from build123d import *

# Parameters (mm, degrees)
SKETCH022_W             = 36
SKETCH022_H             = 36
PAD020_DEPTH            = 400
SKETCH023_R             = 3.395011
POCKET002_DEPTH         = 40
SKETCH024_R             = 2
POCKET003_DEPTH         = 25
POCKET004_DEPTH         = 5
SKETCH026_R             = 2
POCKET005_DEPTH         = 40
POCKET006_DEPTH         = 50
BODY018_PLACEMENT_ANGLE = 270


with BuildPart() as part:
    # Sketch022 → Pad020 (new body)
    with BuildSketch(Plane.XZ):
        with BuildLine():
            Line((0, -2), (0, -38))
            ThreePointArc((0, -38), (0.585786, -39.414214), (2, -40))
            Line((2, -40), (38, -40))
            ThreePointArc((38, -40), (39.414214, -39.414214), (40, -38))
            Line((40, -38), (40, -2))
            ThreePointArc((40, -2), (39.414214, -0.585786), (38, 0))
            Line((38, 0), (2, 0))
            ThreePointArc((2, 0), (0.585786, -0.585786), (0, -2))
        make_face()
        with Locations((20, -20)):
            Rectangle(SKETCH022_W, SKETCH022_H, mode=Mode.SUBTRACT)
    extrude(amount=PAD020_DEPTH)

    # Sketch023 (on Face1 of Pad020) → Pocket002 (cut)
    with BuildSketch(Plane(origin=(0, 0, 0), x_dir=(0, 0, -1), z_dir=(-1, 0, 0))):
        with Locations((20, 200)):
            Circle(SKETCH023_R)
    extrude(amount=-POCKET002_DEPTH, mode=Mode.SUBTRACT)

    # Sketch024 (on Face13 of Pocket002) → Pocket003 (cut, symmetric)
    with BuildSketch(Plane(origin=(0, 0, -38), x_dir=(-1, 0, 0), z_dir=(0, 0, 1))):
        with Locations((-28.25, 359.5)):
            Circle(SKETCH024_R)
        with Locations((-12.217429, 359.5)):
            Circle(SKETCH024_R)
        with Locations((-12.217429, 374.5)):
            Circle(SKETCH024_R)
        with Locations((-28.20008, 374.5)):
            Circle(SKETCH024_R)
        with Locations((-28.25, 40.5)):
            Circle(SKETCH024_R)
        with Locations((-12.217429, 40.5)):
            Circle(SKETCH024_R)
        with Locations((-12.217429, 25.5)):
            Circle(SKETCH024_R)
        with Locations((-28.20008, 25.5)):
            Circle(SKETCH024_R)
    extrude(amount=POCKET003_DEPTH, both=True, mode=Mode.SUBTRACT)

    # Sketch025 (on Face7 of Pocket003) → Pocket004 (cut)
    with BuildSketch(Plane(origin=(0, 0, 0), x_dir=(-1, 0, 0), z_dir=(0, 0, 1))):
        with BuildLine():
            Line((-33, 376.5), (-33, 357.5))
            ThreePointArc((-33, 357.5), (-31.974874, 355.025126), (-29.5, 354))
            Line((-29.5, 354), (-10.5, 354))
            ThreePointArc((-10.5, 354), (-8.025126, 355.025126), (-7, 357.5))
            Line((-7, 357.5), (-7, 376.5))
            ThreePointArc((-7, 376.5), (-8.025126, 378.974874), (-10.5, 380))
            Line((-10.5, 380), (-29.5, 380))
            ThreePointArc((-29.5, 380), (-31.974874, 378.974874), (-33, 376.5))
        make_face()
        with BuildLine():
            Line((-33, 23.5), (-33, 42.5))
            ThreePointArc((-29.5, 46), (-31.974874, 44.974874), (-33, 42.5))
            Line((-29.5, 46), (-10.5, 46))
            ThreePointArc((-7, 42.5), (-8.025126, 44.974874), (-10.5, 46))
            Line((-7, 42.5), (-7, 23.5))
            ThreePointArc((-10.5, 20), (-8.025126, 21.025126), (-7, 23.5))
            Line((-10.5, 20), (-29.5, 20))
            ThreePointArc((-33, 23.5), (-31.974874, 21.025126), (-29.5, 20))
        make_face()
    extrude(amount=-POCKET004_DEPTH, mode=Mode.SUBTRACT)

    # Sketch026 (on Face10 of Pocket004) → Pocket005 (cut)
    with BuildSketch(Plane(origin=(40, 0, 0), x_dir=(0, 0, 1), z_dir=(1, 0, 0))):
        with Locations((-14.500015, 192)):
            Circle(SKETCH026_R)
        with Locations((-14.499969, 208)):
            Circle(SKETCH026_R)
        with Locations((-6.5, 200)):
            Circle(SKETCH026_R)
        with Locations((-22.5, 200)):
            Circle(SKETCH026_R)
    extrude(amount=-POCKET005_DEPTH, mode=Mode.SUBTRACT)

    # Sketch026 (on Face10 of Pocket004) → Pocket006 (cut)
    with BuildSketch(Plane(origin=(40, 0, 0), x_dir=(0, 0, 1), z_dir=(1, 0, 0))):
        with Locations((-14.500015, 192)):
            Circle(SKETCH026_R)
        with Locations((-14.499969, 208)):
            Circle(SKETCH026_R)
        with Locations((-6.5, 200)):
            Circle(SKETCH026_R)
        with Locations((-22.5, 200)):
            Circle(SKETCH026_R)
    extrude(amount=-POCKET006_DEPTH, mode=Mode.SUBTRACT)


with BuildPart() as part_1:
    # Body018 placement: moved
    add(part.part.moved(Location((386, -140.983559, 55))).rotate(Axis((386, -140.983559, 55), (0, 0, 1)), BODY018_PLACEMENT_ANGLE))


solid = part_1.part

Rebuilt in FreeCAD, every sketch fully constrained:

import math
import FreeCAD as App
import Part
import Sketcher
from FreeCAD import Vector
Q = App.Units.Quantity

doc = App.newDocument("Part")
body = doc.addObject("PartDesign::Body", "Body")

sketch1 = body.newObject("Sketcher::SketchObject", "Sketch")
sketch1.AttachmentSupport = (doc.getObject("XZ_Plane"), [""])
sketch1.MapMode = "FlatFace"
sketch1.addGeometry(Part.LineSegment(Vector(0, -2, 0), Vector(0, -38, 0)), False)
sketch1.addGeometry(Part.ArcOfCircle(Part.Circle(Vector(2, -38, 0), Vector(0, 0, 1), 2), math.radians(180), math.radians(270)), False)
sketch1.addGeometry(Part.LineSegment(Vector(2, -40, 0), Vector(38, -40, 0)), False)
sketch1.addGeometry(Part.ArcOfCircle(Part.Circle(Vector(38, -38, 0), Vector(0, 0, 1), 2), math.radians(-90), math.radians(0)), False)
sketch1.addGeometry(Part.LineSegment(Vector(40, -38, 0), Vector(40, -2, 0)), False)
sketch1.addGeometry(Part.ArcOfCircle(Part.Circle(Vector(38, -2, 0), Vector(0, 0, 1), 2), math.radians(0), math.radians(90)), False)
sketch1.addGeometry(Part.LineSegment(Vector(38, 0, 0), Vector(2, 0, 0)), False)
sketch1.addGeometry(Part.ArcOfCircle(Part.Circle(Vector(2, -2, 0), Vector(0, 0, 1), 2), math.radians(90), math.radians(180)), False)
sketch1.addGeometry(Part.LineSegment(Vector(38, -38, 0), Vector(2, -38, 0)), False)
sketch1.addGeometry(Part.LineSegment(Vector(2, -38, 0), Vector(2, -2, 0)), False)
sketch1.addGeometry(Part.LineSegment(Vector(2, -2, 0), Vector(38, -2, 0)), False)
sketch1.addGeometry(Part.LineSegment(Vector(38, -2, 0), Vector(38, -38, 0)), False)
sketch1.addConstraint(Sketcher.Constraint("Tangent", 0, 2, 1, 1))
sketch1.addConstraint(Sketcher.Constraint("Tangent", 1, 2, 2, 1))
sketch1.addConstraint(Sketcher.Constraint("Tangent", 2, 2, 3, 1))
sketch1.addConstraint(Sketcher.Constraint("Tangent", 3, 2, 4, 1))
sketch1.addConstraint(Sketcher.Constraint("Tangent", 4, 2, 5, 1))
sketch1.addConstraint(Sketcher.Constraint("Tangent", 5, 2, 6, 1))
sketch1.addConstraint(Sketcher.Constraint("Tangent", 6, 2, 7, 1))
sketch1.addConstraint(Sketcher.Constraint("Tangent", 7, 2, 0, 1))
sketch1.addConstraint(Sketcher.Constraint("Coincident", 8, 2, 9, 1))
sketch1.addConstraint(Sketcher.Constraint("Coincident", 9, 2, 10, 1))
sketch1.addConstraint(Sketcher.Constraint("Coincident", 10, 2, 11, 1))
sketch1.addConstraint(Sketcher.Constraint("Coincident", 11, 2, 8, 1))
sketch1.addConstraint(Sketcher.Constraint("Vertical", 0))
sketch1.addConstraint(Sketcher.Constraint("Horizontal", 2))
sketch1.addConstraint(Sketcher.Constraint("Vertical", 4))
sketch1.addConstraint(Sketcher.Constraint("Horizontal", 6))
sketch1.addConstraint(Sketcher.Constraint("Horizontal", 8))
sketch1.addConstraint(Sketcher.Constraint("Vertical", 9))
sketch1.addConstraint(Sketcher.Constraint("Horizontal", 10))
sketch1.addConstraint(Sketcher.Constraint("Vertical", 11))
sketch1.addConstraint(Sketcher.Constraint("Coincident", 8, 2, 1, 3))
sketch1.addConstraint(Sketcher.Constraint("Coincident", 9, 2, 7, 3))
sketch1.addConstraint(Sketcher.Constraint("Coincident", 10, 2, 5, 3))
sketch1.addConstraint(Sketcher.Constraint("Equal", 1, 3))
sketch1.addConstraint(Sketcher.Constraint("PointOnObject", 0, 2, -2))
sketch1.addConstraint(Sketcher.Constraint("PointOnObject", 5, 2, -1))
sketch1.addConstraint(Sketcher.Constraint("Equal", 10, 0))
sketch1.addConstraint(Sketcher.Constraint("Radius", 1, Q("1.999999 mm")))
sketch1.addConstraint(Sketcher.Constraint("DistanceX", 2, 1, 2, 2, Q("36 mm")))
pad1 = body.newObject("PartDesign::Pad", "Pad")
pad1.Profile = sketch1
pad1.Length = 400

sketch2 = body.newObject("Sketcher::SketchObject", "Sketch001")
sketch2.AttachmentSupport = (doc.getObject("YZ_Plane"), [""])
sketch2.MapMode = "FlatFace"
sketch2.addGeometry(Part.Circle(Vector(-200, -20, 0), Vector(0, 0, 1), 3.4), False)
sketch2.addConstraint(Sketcher.Constraint("DistanceX", 0, 3, -1, 1, Q("200 mm")))
sketch2.addConstraint(Sketcher.Constraint("DistanceY", 0, 3, -1, 1, Q("20 mm")))
sketch2.addConstraint(Sketcher.Constraint("Diameter", 0, Q("6.790022 mm")))
pocket1 = body.newObject("PartDesign::Pocket", "Pocket")
pocket1.Profile = sketch2
pocket1.Length = 40
pocket1.Reversed = True

sketch3 = body.newObject("Sketcher::SketchObject", "Sketch002")
sketch3.AttachmentSupport = (doc.getObject("XY_Plane"), [""])
sketch3.MapMode = "FlatFace"
sketch3.AttachmentOffset = App.Placement(Vector(0, 0, -38), App.Rotation())
sketch3.addGeometry(Part.Circle(Vector(28.2, -359.5, 0), Vector(0, 0, 1), 2), False)
sketch3.addGeometry(Part.Circle(Vector(12.2, -359.5, 0), Vector(0, 0, 1), 2), False)
sketch3.addGeometry(Part.Circle(Vector(12.2, -374.5, 0), Vector(0, 0, 1), 2), False)
sketch3.addGeometry(Part.Circle(Vector(28.2, -374.5, 0), Vector(0, 0, 1), 2), False)
sketch3.addGeometry(Part.Circle(Vector(28.2, -40.5, 0), Vector(0, 0, 1), 2), False)
sketch3.addGeometry(Part.Circle(Vector(12.2, -40.5, 0), Vector(0, 0, 1), 2), False)
sketch3.addGeometry(Part.Circle(Vector(12.2, -25.5, 0), Vector(0, 0, 1), 2), False)
sketch3.addGeometry(Part.Circle(Vector(28.2, -25.5, 0), Vector(0, 0, 1), 2), False)
sketch3.addConstraint(Sketcher.Constraint("Equal", 0, 1))
sketch3.addConstraint(Sketcher.Constraint("Equal", 1, 2))
sketch3.addConstraint(Sketcher.Constraint("Equal", 2, 3))
sketch3.addConstraint(Sketcher.Constraint("Equal", 3, 4))
sketch3.addConstraint(Sketcher.Constraint("Equal", 4, 5))
sketch3.addConstraint(Sketcher.Constraint("Equal", 5, 6))
sketch3.addConstraint(Sketcher.Constraint("Equal", 6, 7))
sketch3.addConstraint(Sketcher.Constraint("Horizontal", 0, 3, 1, 3))
sketch3.addConstraint(Sketcher.Constraint("Horizontal", 2, 3, 3, 3))
sketch3.addConstraint(Sketcher.Constraint("Horizontal", 4, 3, 5, 3))
sketch3.addConstraint(Sketcher.Constraint("Horizontal", 6, 3, 7, 3))
sketch3.addConstraint(Sketcher.Constraint("Vertical", 1, 3, 2, 3))
sketch3.addConstraint(Sketcher.Constraint("Vertical", 0, 3, 4, 3))
sketch3.addConstraint(Sketcher.Constraint("Vertical", 2, 3, 5, 3))
sketch3.addConstraint(Sketcher.Constraint("Vertical", 5, 3, 6, 3))
sketch3.addConstraint(Sketcher.Constraint("Vertical", 3, 3, 7, 3))
sketch3.addConstraint(Sketcher.Constraint("Diameter", 0, Q("4 mm")))
sketch3.addConstraint(Sketcher.Constraint("DistanceY", 2, 3, 1, 3, Q("15 mm")))
sketch3.addConstraint(Sketcher.Constraint("DistanceY", 0, 3, 4, 3, Q("319 mm")))
sketch3.addConstraint(Sketcher.Constraint("DistanceY", 5, 3, 6, 3, Q("15 mm")))
sketch3.addConstraint(Sketcher.Constraint("DistanceY", 0, 3, -1, 1, Q("359.5 mm")))
sketch3.addConstraint(Sketcher.Constraint("DistanceX", -1, 1, 0, 3, Q("28.25 mm")))
sketch3.addConstraint(Sketcher.Constraint("DistanceX", -1, 1, 1, 3, Q("12.217429 mm")))
sketch3.addConstraint(Sketcher.Constraint("DistanceX", -1, 1, 3, 3, Q("28.20008 mm")))
pocket2 = body.newObject("PartDesign::Pocket", "Pocket001")
pocket2.Profile = sketch3
pocket2.Length = 50
pocket2.Midplane = True

sketch4 = body.newObject("Sketcher::SketchObject", "Sketch003")
sketch4.AttachmentSupport = (doc.getObject("XY_Plane"), [""])
sketch4.MapMode = "FlatFace"
sketch4.addGeometry(Part.LineSegment(Vector(33, -376.5, 0), Vector(33, -357.5, 0)), False)
sketch4.addGeometry(Part.ArcOfCircle(Part.Circle(Vector(29.5, -357.5, 0), Vector(0, 0, 1), 3.5), math.radians(0), math.radians(90)), False)
sketch4.addGeometry(Part.LineSegment(Vector(29.5, -354, 0), Vector(10.5, -354, 0)), False)
sketch4.addGeometry(Part.ArcOfCircle(Part.Circle(Vector(10.5, -357.5, 0), Vector(0, 0, 1), 3.5), math.radians(90), math.radians(180)), False)
sketch4.addGeometry(Part.LineSegment(Vector(7, -357.5, 0), Vector(7, -376.5, 0)), False)
sketch4.addGeometry(Part.ArcOfCircle(Part.Circle(Vector(10.5, -376.5, 0), Vector(0, 0, 1), 3.5), math.radians(180), math.radians(270)), False)
sketch4.addGeometry(Part.LineSegment(Vector(10.5, -380, 0), Vector(29.5, -380, 0)), False)
sketch4.addGeometry(Part.ArcOfCircle(Part.Circle(Vector(29.5, -376.5, 0), Vector(0, 0, 1), 3.5), math.radians(-90), math.radians(0)), False)
sketch4.addGeometry(Part.LineSegment(Vector(33, -42.5, 0), Vector(33, -23.5, 0)), False)
sketch4.addGeometry(Part.ArcOfCircle(Part.Circle(Vector(29.5, -23.5, 0), Vector(0, 0, 1), 3.5), math.radians(0), math.radians(90)), False)
sketch4.addGeometry(Part.LineSegment(Vector(29.5, -20, 0), Vector(10.5, -20, 0)), False)
sketch4.addGeometry(Part.ArcOfCircle(Part.Circle(Vector(10.5, -23.5, 0), Vector(0, 0, 1), 3.5), math.radians(90), math.radians(180)), False)
sketch4.addGeometry(Part.LineSegment(Vector(7, -23.5, 0), Vector(7, -42.5, 0)), False)
sketch4.addGeometry(Part.ArcOfCircle(Part.Circle(Vector(10.5, -42.5, 0), Vector(0, 0, 1), 3.5), math.radians(180), math.radians(270)), False)
sketch4.addGeometry(Part.LineSegment(Vector(10.5, -46, 0), Vector(29.5, -46, 0)), False)
sketch4.addGeometry(Part.ArcOfCircle(Part.Circle(Vector(29.5, -42.5, 0), Vector(0, 0, 1), 3.5), math.radians(-90), math.radians(0)), False)
sketch4.addConstraint(Sketcher.Constraint("Tangent", 0, 2, 1, 1))
sketch4.addConstraint(Sketcher.Constraint("Tangent", 1, 2, 2, 1))
sketch4.addConstraint(Sketcher.Constraint("Tangent", 2, 2, 3, 1))
sketch4.addConstraint(Sketcher.Constraint("Tangent", 3, 2, 4, 1))
sketch4.addConstraint(Sketcher.Constraint("Tangent", 4, 2, 5, 1))
sketch4.addConstraint(Sketcher.Constraint("Tangent", 5, 2, 6, 1))
sketch4.addConstraint(Sketcher.Constraint("Tangent", 6, 2, 7, 1))
sketch4.addConstraint(Sketcher.Constraint("Tangent", 7, 2, 0, 1))
sketch4.addConstraint(Sketcher.Constraint("Tangent", 8, 2, 9, 1))
sketch4.addConstraint(Sketcher.Constraint("Tangent", 9, 2, 10, 1))
sketch4.addConstraint(Sketcher.Constraint("Tangent", 10, 2, 11, 1))
sketch4.addConstraint(Sketcher.Constraint("Tangent", 11, 2, 12, 1))
sketch4.addConstraint(Sketcher.Constraint("Tangent", 12, 2, 13, 1))
sketch4.addConstraint(Sketcher.Constraint("Tangent", 13, 2, 14, 1))
sketch4.addConstraint(Sketcher.Constraint("Tangent", 14, 2, 15, 1))
sketch4.addConstraint(Sketcher.Constraint("Tangent", 15, 2, 8, 1))
sketch4.addConstraint(Sketcher.Constraint("Vertical", 0))
sketch4.addConstraint(Sketcher.Constraint("Horizontal", 2))
sketch4.addConstraint(Sketcher.Constraint("Vertical", 4))
sketch4.addConstraint(Sketcher.Constraint("Horizontal", 6))
sketch4.addConstraint(Sketcher.Constraint("Vertical", 8))
sketch4.addConstraint(Sketcher.Constraint("Horizontal", 10))
sketch4.addConstraint(Sketcher.Constraint("Vertical", 12))
sketch4.addConstraint(Sketcher.Constraint("Horizontal", 14))
sketch4.addConstraint(Sketcher.Constraint("Equal", 1, 3))
sketch4.addConstraint(Sketcher.Constraint("Equal", 3, 5))
sketch4.addConstraint(Sketcher.Constraint("Equal", 5, 7))
sketch4.addConstraint(Sketcher.Constraint("Equal", 7, 9))
sketch4.addConstraint(Sketcher.Constraint("Equal", 9, 11))
sketch4.addConstraint(Sketcher.Constraint("Equal", 11, 13))
sketch4.addConstraint(Sketcher.Constraint("Equal", 13, 15))
sketch4.addConstraint(Sketcher.Constraint("Vertical", 7, 3, 9, 3))
sketch4.addConstraint(Sketcher.Constraint("Vertical", 5, 3, 11, 3))
sketch4.addConstraint(Sketcher.Constraint("Equal", 14, 0))
sketch4.addConstraint(Sketcher.Constraint("Equal", 4, 8))
sketch4.addConstraint(Sketcher.Constraint("Radius", 1, Q("3.499999 mm")))
sketch4.addConstraint(Sketcher.Constraint("DistanceX", 2, 2, 2, 1, Q("19 mm")))
sketch4.addConstraint(Sketcher.Constraint("DistanceX", -1, 1, 0, 2, Q("33 mm")))
sketch4.addConstraint(Sketcher.Constraint("DistanceY", 1, 2, -1, 1, Q("354 mm")))
sketch4.addConstraint(Sketcher.Constraint("DistanceY", 9, 2, -1, 1, Q("20 mm")))
pocket3 = body.newObject("PartDesign::Pocket", "Pocket002")
pocket3.Profile = sketch4
pocket3.Length = 5

sketch5 = body.newObject("Sketcher::SketchObject", "Sketch004")
sketch5.AttachmentSupport = (doc.getObject("YZ_Plane"), [""])
sketch5.MapMode = "FlatFace"
sketch5.AttachmentOffset = App.Placement(Vector(0, 0, 40), App.Rotation())
sketch5.addGeometry(Part.Circle(Vector(-192, -14.500015, 0), Vector(0, 0, 1), 2), False)
sketch5.addGeometry(Part.Circle(Vector(-208, -14.499969, 0), Vector(0, 0, 1), 2), False)
sketch5.addGeometry(Part.Circle(Vector(-200, -6.5, 0), Vector(0, 0, 1), 2), False)
sketch5.addGeometry(Part.Circle(Vector(-200, -22.5, 0), Vector(0, 0, 1), 2), False)
sketch5.addConstraint(Sketcher.Constraint("Equal", 0, 1))
sketch5.addConstraint(Sketcher.Constraint("Equal", 1, 2))
sketch5.addConstraint(Sketcher.Constraint("Equal", 2, 3))
sketch5.addConstraint(Sketcher.Constraint("Vertical", 2, 3, 3, 3))
sketch5.addConstraint(Sketcher.Constraint("Diameter", 0, Q("4 mm")))
sketch5.addConstraint(Sketcher.Constraint("DistanceX", 0, 3, -1, 1, Q("192 mm")))
sketch5.addConstraint(Sketcher.Constraint("DistanceX", 1, 3, -1, 1, Q("208 mm")))
sketch5.addConstraint(Sketcher.Constraint("DistanceX", 2, 3, -1, 1, Q("200 mm")))
sketch5.addConstraint(Sketcher.Constraint("DistanceY", 3, 3, 2, 3, Q("16 mm")))
sketch5.addConstraint(Sketcher.Constraint("DistanceY", 2, 3, -1, 1, Q("6.5 mm")))
sketch5.addConstraint(Sketcher.Constraint("DistanceY", 1, 3, -1, 1, Q("14.499969 mm")))
sketch5.addConstraint(Sketcher.Constraint("DistanceY", 0, 3, -1, 1, Q("14.500015 mm")))
pocket4 = body.newObject("PartDesign::Pocket", "Pocket003")
pocket4.Profile = sketch5
pocket4.Length = 40

sketch6 = body.newObject("Sketcher::SketchObject", "Sketch005")
sketch6.AttachmentSupport = (doc.getObject("YZ_Plane"), [""])
sketch6.MapMode = "FlatFace"
sketch6.AttachmentOffset = App.Placement(Vector(0, 0, 40), App.Rotation())
sketch6.addGeometry(Part.Circle(Vector(-192, -14.500015, 0), Vector(0, 0, 1), 2), False)
sketch6.addGeometry(Part.Circle(Vector(-208, -14.499969, 0), Vector(0, 0, 1), 2), False)
sketch6.addGeometry(Part.Circle(Vector(-200, -6.5, 0), Vector(0, 0, 1), 2), False)
sketch6.addGeometry(Part.Circle(Vector(-200, -22.5, 0), Vector(0, 0, 1), 2), False)
sketch6.addConstraint(Sketcher.Constraint("Equal", 0, 1))
sketch6.addConstraint(Sketcher.Constraint("Equal", 1, 2))
sketch6.addConstraint(Sketcher.Constraint("Equal", 2, 3))
sketch6.addConstraint(Sketcher.Constraint("Vertical", 2, 3, 3, 3))
sketch6.addConstraint(Sketcher.Constraint("Diameter", 0, Q("4 mm")))
sketch6.addConstraint(Sketcher.Constraint("DistanceX", 0, 3, -1, 1, Q("192 mm")))
sketch6.addConstraint(Sketcher.Constraint("DistanceX", 1, 3, -1, 1, Q("208 mm")))
sketch6.addConstraint(Sketcher.Constraint("DistanceX", 2, 3, -1, 1, Q("200 mm")))
sketch6.addConstraint(Sketcher.Constraint("DistanceY", 3, 3, 2, 3, Q("16 mm")))
sketch6.addConstraint(Sketcher.Constraint("DistanceY", 2, 3, -1, 1, Q("6.5 mm")))
sketch6.addConstraint(Sketcher.Constraint("DistanceY", 1, 3, -1, 1, Q("14.499969 mm")))
sketch6.addConstraint(Sketcher.Constraint("DistanceY", 0, 3, -1, 1, Q("14.500015 mm")))
pocket5 = body.newObject("PartDesign::Pocket", "Pocket004")
pocket5.Profile = sketch6
pocket5.Length = 50
body2 = doc.addObject("PartDesign::Body", "Body001")
doc.recompute()

body.Placement = App.Placement(Vector(386, -140.983559, 55), App.Rotation(Vector(0, 0, 1), 270))
boolean = body2.newObject("PartDesign::Boolean", "Boolean")
boolean.Type = "Fuse"
boolean.addObjects([body])

doc.recompute()
